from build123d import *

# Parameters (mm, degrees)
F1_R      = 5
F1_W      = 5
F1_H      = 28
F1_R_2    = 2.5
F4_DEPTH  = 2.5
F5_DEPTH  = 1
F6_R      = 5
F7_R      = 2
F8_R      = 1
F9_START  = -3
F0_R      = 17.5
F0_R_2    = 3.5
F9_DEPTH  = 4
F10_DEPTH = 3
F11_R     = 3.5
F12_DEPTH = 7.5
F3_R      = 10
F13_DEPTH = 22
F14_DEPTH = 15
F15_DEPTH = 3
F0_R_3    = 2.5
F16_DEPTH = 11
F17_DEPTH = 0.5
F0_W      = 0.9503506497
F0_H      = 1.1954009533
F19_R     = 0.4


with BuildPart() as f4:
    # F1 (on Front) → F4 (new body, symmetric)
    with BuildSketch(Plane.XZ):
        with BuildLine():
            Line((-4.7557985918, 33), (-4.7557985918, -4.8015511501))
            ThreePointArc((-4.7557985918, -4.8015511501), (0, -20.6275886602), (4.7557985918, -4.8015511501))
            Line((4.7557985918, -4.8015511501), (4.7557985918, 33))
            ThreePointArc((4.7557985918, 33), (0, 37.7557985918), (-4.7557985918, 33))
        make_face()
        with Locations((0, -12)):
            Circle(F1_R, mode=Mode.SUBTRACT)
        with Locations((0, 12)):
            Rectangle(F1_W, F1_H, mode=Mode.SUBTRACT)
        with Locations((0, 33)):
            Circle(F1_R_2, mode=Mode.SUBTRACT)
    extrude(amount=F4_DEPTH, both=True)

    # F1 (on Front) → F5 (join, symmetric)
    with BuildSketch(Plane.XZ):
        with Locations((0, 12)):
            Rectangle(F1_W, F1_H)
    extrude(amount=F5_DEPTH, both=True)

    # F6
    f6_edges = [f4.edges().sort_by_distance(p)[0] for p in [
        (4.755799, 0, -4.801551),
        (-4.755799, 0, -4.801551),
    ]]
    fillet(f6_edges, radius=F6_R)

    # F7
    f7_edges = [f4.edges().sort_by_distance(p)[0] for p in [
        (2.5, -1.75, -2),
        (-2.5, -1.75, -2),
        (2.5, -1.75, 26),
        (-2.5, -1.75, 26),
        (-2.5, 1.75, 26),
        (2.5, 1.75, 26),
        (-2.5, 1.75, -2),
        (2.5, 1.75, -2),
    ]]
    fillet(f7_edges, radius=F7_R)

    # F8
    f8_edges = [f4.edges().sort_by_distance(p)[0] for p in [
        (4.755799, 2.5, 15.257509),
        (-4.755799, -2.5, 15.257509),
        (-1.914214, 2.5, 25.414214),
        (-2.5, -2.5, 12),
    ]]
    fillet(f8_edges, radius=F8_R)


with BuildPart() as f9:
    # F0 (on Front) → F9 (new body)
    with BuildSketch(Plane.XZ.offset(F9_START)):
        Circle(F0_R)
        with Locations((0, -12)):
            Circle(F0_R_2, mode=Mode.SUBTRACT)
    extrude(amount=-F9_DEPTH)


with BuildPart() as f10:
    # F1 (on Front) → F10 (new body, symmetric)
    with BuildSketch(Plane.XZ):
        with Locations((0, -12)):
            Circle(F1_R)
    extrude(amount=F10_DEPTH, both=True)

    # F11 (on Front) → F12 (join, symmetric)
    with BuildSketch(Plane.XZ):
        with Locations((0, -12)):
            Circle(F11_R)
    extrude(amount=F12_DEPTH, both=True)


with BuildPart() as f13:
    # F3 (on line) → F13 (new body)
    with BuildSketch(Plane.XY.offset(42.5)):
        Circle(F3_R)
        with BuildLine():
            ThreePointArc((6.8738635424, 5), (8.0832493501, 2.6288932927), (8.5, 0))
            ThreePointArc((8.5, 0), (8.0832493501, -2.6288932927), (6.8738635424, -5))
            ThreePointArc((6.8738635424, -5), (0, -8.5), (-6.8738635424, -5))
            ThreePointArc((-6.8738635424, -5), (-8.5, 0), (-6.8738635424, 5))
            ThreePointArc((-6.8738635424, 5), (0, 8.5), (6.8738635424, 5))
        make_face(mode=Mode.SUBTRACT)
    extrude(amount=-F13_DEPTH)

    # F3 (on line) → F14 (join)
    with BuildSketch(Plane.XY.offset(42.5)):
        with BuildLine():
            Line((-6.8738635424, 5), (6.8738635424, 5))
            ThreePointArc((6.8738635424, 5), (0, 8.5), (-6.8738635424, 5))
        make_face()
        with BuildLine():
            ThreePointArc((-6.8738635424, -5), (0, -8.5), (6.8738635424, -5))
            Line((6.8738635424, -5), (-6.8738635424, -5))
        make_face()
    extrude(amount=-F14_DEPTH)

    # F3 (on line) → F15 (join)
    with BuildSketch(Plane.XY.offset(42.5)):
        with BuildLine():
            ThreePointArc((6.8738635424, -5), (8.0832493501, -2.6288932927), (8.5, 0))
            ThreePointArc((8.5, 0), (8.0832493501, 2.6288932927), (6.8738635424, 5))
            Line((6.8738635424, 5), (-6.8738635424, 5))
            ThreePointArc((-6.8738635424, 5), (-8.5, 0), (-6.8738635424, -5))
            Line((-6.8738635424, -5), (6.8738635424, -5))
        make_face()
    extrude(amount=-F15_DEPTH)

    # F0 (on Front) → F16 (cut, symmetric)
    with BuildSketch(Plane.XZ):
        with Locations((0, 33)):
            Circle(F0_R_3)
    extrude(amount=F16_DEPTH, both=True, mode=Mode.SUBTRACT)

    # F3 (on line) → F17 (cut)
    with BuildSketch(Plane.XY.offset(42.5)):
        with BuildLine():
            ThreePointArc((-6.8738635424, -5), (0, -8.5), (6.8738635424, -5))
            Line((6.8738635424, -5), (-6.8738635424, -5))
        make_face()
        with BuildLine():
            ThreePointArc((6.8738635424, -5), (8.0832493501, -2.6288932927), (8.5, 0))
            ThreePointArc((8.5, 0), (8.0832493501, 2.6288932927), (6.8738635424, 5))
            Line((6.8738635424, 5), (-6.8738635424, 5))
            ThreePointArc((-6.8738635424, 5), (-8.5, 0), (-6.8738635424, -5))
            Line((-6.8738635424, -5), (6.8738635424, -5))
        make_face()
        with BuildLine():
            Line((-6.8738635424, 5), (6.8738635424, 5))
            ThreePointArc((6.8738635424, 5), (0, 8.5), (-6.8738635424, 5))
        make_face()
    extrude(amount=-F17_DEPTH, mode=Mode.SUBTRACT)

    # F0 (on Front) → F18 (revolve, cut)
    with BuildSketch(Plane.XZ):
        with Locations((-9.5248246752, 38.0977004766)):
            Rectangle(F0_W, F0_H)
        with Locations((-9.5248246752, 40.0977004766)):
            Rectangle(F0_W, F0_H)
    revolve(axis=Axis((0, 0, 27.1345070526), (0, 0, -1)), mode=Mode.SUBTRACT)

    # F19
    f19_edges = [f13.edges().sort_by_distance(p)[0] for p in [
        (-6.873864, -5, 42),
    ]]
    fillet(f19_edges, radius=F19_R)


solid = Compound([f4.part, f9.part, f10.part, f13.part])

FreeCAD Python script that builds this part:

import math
import FreeCAD as App
import Part
import Sketcher
from FreeCAD import Vector


def edges_at(feature, points):
    """Names of the edges that pass closest to the given points."""
    edges = feature.Shape.Edges
    near = lambda p: min(range(len(edges)), key=lambda i: edges[i].distToShape(Part.Vertex(*p))[0])
    return sorted({f"Edge{near(p) + 1}" for p in points})

doc = App.newDocument("Part")
body = doc.addObject("PartDesign::Body", "Body")

# Sketch on XZ plane
sketch1 = doc.addObject("Sketcher::SketchObject", "Sketch")
body.addObject(sketch1)
sketch1.AttachmentSupport = (doc.XZ_Plane, [""])
sketch1.MapMode = "FlatFace"
sketch1.addGeometry(Part.LineSegment(Vector(-4.755799, 33, 0), Vector(-4.755799, -4.801551, 0)), False)
sketch1.addGeometry(Part.ArcOfCircle(Part.Circle(Vector(0, -12, 0), Vector(0, 0, 1), 8.627589), math.radians(123.45154), math.radians(416.54846)), False)
sketch1.addGeometry(Part.LineSegment(Vector(4.755799, -4.801551, 0), Vector(4.755799, 33, 0)), False)
sketch1.addGeometry(Part.ArcOfCircle(Part.Circle(Vector(0, 33, 0), Vector(0, 0, 1), 4.755799), math.radians(0), math.radians(180)), False)
sketch1.addGeometry(Part.Circle(Vector(0, -12, 0), Vector(0, 0, 1), 5), False)
sketch1.addGeometry(Part.LineSegment(Vector(2.5, -2, 0), Vector(-2.5, -2, 0)), False)
sketch1.addGeometry(Part.LineSegment(Vector(-2.5, -2, 0), Vector(-2.5, 26, 0)), False)
sketch1.addGeometry(Part.LineSegment(Vector(-2.5, 26, 0), Vector(2.5, 26, 0)), False)
sketch1.addGeometry(Part.LineSegment(Vector(2.5, 26, 0), Vector(2.5, -2, 0)), False)
sketch1.addGeometry(Part.Circle(Vector(0, 33, 0), Vector(0, 0, 1), 2.5), False)
sketch1.addConstraint(Sketcher.Constraint("Coincident", 0, 2, 1, 1))
sketch1.addConstraint(Sketcher.Constraint("Coincident", 1, 2, 2, 1))
sketch1.addConstraint(Sketcher.Constraint("Tangent", 2, 2, 3, 1))
sketch1.addConstraint(Sketcher.Constraint("Tangent", 3, 2, 0, 1))
sketch1.addConstraint(Sketcher.Constraint("Coincident", 5, 2, 6, 1))
sketch1.addConstraint(Sketcher.Constraint("Coincident", 6, 2, 7, 1))
sketch1.addConstraint(Sketcher.Constraint("Coincident", 7, 2, 8, 1))
sketch1.addConstraint(Sketcher.Constraint("Coincident", 8, 2, 5, 1))
sketch1.addConstraint(Sketcher.Constraint("Vertical", 0))
sketch1.addConstraint(Sketcher.Constraint("Vertical", 2))
sketch1.addConstraint(Sketcher.Constraint("Horizontal", 5))
sketch1.addConstraint(Sketcher.Constraint("Vertical", 6))
sketch1.addConstraint(Sketcher.Constraint("Horizontal", 7))
sketch1.addConstraint(Sketcher.Constraint("Vertical", 8))
sketch1.addConstraint(Sketcher.Constraint("Coincident", 4, 3, 1, 3))
sketch1.addConstraint(Sketcher.Constraint("Coincident", 9, 3, 3, 3))
sketch1.addConstraint(Sketcher.Constraint("Symmetric", 0, 2, 1, 2, -2))
sketch1.addConstraint(Sketcher.Constraint("Diameter", 4, 10.0))
sketch1.addConstraint(Sketcher.Constraint("Diameter", 9, 5.0))
sketch1.addConstraint(Sketcher.Constraint("DistanceX", 5, 2, 5, 1, 5.0))
sketch1.addConstraint(Sketcher.Constraint("DistanceY", 6, 1, 6, 2, 28.0))
sketch1.addConstraint(Sketcher.Constraint("DistanceY", 1, 3, -1, 1, 12.0))
sketch1.addConstraint(Sketcher.Constraint("DistanceY", -1, 1, 3, 3, 33.0))
sketch1.addConstraint(Sketcher.Constraint("DistanceY", 5, 2, -1, 1, 2.0))
sketch1.addConstraint(Sketcher.Constraint("DistanceX", 5, 2, -1, 1, 2.5))
sketch1.addConstraint(Sketcher.Constraint("Radius", 3, 4.755799))
sketch1.addConstraint(Sketcher.Constraint("Radius", 1, 8.627589))
pad1 = doc.addObject("PartDesign::Pad", "Pad")
body.addObject(pad1)
pad1.Profile = sketch1
pad1.Length = 5
pad1.Midplane = True

# Sketch on XZ plane
sketch2 = doc.addObject("Sketcher::SketchObject", "Sketch001")
body.addObject(sketch2)
sketch2.AttachmentSupport = (doc.XZ_Plane, [""])
sketch2.MapMode = "FlatFace"
sketch2.addGeometry(Part.LineSegment(Vector(-2.5, 26, 0), Vector(-2.5, -2, 0)), False)
sketch2.addGeometry(Part.LineSegment(Vector(-2.5, -2, 0), Vector(2.5, -2, 0)), False)
sketch2.addGeometry(Part.LineSegment(Vector(2.5, -2, 0), Vector(2.5, 26, 0)), False)
sketch2.addGeometry(Part.LineSegment(Vector(2.5, 26, 0), Vector(-2.5, 26, 0)), False)
sketch2.addConstraint(Sketcher.Constraint("Coincident", 0, 2, 1, 1))
sketch2.addConstraint(Sketcher.Constraint("Coincident", 1, 2, 2, 1))
sketch2.addConstraint(Sketcher.Constraint("Coincident", 2, 2, 3, 1))
sketch2.addConstraint(Sketcher.Constraint("Coincident", 3, 2, 0, 1))
sketch2.addConstraint(Sketcher.Constraint("Vertical", 0))
sketch2.addConstraint(Sketcher.Constraint("Horizontal", 1))
sketch2.addConstraint(Sketcher.Constraint("Vertical", 2))
sketch2.addConstraint(Sketcher.Constraint("Horizontal", 3))
sketch2.addConstraint(Sketcher.Constraint("DistanceX", 1, 1, 1, 2, 5.0))
sketch2.addConstraint(Sketcher.Constraint("DistanceY", 0, 2, 0, 1, 28.0))
sketch2.addConstraint(Sketcher.Constraint("DistanceY", 0, 2, -1, 1, 2.0))
sketch2.addConstraint(Sketcher.Constraint("DistanceX", 0, 2, -1, 1, 2.5))
pad2 = doc.addObject("PartDesign::Pad", "Pad001")
body.addObject(pad2)
pad2.Profile = sketch2
pad2.Length = 2
pad2.Midplane = True
doc.recompute()

fillet = doc.addObject("PartDesign::Fillet", "Fillet")
body.addObject(fillet)
fillet.Base = (pad2, edges_at(pad2, [(4.756, 0, -4.802), (-4.756, 0, -4.802)]))
fillet.Radius = 5
doc.recompute()

fillet2 = doc.addObject("PartDesign::Fillet", "Fillet001")
body.addObject(fillet2)
fillet2.Base = (fillet, edges_at(fillet, [
    (2.5, -1.75, -2),
    (-2.5, -1.75, -2),
    (2.5, -1.75, 26),
    (-2.5, -1.75, 26),
    (-2.5, 1.75, 26),
    (2.5, 1.75, 26),
    (-2.5, 1.75, -2),
    (2.5, 1.75, -2),
]))
fillet2.Radius = 2
doc.recompute()

fillet3 = doc.addObject("PartDesign::Fillet", "Fillet002")
body.addObject(fillet3)
fillet3.Base = (fillet2, edges_at(fillet2, [
    (4.756, 2.5, 15.258),
    (-4.756, -2.5, 15.258),
    (-1.914, 2.5, 25.414),
    (-2.5, -2.5, 12),
]))
fillet3.Radius = 1
body2 = doc.addObject("PartDesign::Body", "Body001")

# Sketch on XZ plane
sketch3 = doc.addObject("Sketcher::SketchObject", "Sketch002")
body2.addObject(sketch3)
sketch3.AttachmentSupport = (doc.getObject("XZ_Plane001"), [""])
sketch3.MapMode = "FlatFace"
sketch3.AttachmentOffset = App.Placement(Vector(0, 0, -3), App.Rotation())
sketch3.addGeometry(Part.Circle(Vector(0, 0, 0), Vector(0, 0, 1), 17.5), False)
sketch3.addGeometry(Part.Circle(Vector(0, -12, 0), Vector(0, 0, 1), 3.5), False)
sketch3.addConstraint(Sketcher.Constraint("Coincident", 0, 3, -1, 1))
sketch3.addConstraint(Sketcher.Constraint("PointOnObject", 1, 3, -2))
sketch3.addConstraint(Sketcher.Constraint("Diameter", 0, 35.0))
sketch3.addConstraint(Sketcher.Constraint("Diameter", 1, 7.0))
sketch3.addConstraint(Sketcher.Constraint("DistanceY", 1, 3, -1, 1, 12.0))
pad3 = doc.addObject("PartDesign::Pad", "Pad002")
body2.addObject(pad3)
pad3.Profile = sketch3
pad3.Length = 4
pad3.Reversed = True
body3 = doc.addObject("PartDesign::Body", "Body002")

# Sketch on XZ plane
sketch4 = doc.addObject("Sketcher::SketchObject", "Sketch003")
body3.addObject(sketch4)
sketch4.AttachmentSupport = (doc.getObject("XZ_Plane002"), [""])
sketch4.MapMode = "FlatFace"
sketch4.addGeometry(Part.Circle(Vector(0, -12, 0), Vector(0, 0, 1), 5), False)
sketch4.addConstraint(Sketcher.Constraint("PointOnObject", 0, 3, -2))
sketch4.addConstraint(Sketcher.Constraint("Diameter", 0, 10.0))
sketch4.addConstraint(Sketcher.Constraint("DistanceY", 0, 3, -1, 1, 12.0))
pad4 = doc.addObject("PartDesign::Pad", "Pad003")
body3.addObject(pad4)
pad4.Profile = sketch4
pad4.Length = 6
pad4.Midplane = True

# Sketch on XZ plane
sketch5 = doc.addObject("Sketcher::SketchObject", "Sketch004")
body3.addObject(sketch5)
sketch5.AttachmentSupport = (doc.getObject("XZ_Plane002"), [""])
sketch5.MapMode = "FlatFace"
sketch5.addGeometry(Part.Circle(Vector(0, -12, 0), Vector(0, 0, 1), 3.5), False)
sketch5.addConstraint(Sketcher.Constraint("PointOnObject", 0, 3, -2))
sketch5.addConstraint(Sketcher.Constraint("Diameter", 0, 7.0))
sketch5.addConstraint(Sketcher.Constraint("DistanceY", 0, 3, -1, 1, 12.0))
pad5 = doc.addObject("PartDesign::Pad", "Pad004")
body3.addObject(pad5)
pad5.Profile = sketch5
pad5.Length = 15
pad5.Midplane = True
body4 = doc.addObject("PartDesign::Body", "Body003")

# Sketch on XY plane
sketch6 = doc.addObject("Sketcher::SketchObject", "Sketch005")
body4.addObject(sketch6)
sketch6.AttachmentSupport = (doc.getObject("XY_Plane003"), [""])
sketch6.MapMode = "FlatFace"
sketch6.AttachmentOffset = App.Placement(Vector(0, 0, 42.5), App.Rotation())
sketch6.addGeometry(Part.Circle(Vector(0, 0, 0), Vector(0, 0, 1), 10), False)
sketch6.addGeometry(Part.ArcOfCircle(Part.Circle(Vector(0, 0, 0), Vector(0, 0, 1), 8.5), math.radians(36.031879), math.radians(143.968121)), False)
sketch6.addGeometry(Part.ArcOfCircle(Part.Circle(Vector(0, 0, 0), Vector(0, 0, 1), 8.5), math.radians(0), math.radians(36.031879)), False)
sketch6.addGeometry(Part.ArcOfCircle(Part.Circle(Vector(0, 0, 0), Vector(0, 0, 1), 8.5), math.radians(-36.031879), math.radians(0)), False)
sketch6.addGeometry(Part.ArcOfCircle(Part.Circle(Vector(0, 0, 0), Vector(0, 0, 1), 8.5), math.radians(-143.968121), math.radians(-36.031879)), False)
sketch6.addGeometry(Part.ArcOfCircle(Part.Circle(Vector(0, 0, 0), Vector(0, 0, 1), 8.5), math.radians(143.968121), math.radians(216.031879)), False)
sketch6.addConstraint(Sketcher.Constraint("Tangent", 1, 1, 2, 2))
sketch6.addConstraint(Sketcher.Constraint("Tangent", 2, 1, 3, 2))
sketch6.addConstraint(Sketcher.Constraint("Tangent", 3, 1, 4, 2))
sketch6.addConstraint(Sketcher.Constraint("Tangent", 4, 1, 5, 2))
sketch6.addConstraint(Sketcher.Constraint("Tangent", 5, 1, 1, 2))
sketch6.addConstraint(Sketcher.Constraint("Coincident", 0, 3, -1, 1))
sketch6.addConstraint(Sketcher.Constraint("Coincident", 1, 3, -1, 1))
sketch6.addConstraint(Sketcher.Constraint("Coincident", 3, 3, -1, 1))
sketch6.addConstraint(Sketcher.Constraint("PointOnObject", 2, 1, -1))
sketch6.addConstraint(Sketcher.Constraint("Horizontal", 3, 1, 4, 1))
sketch6.addConstraint(Sketcher.Constraint("Horizontal", 1, 1, 5, 1))
sketch6.addConstraint(Sketcher.Constraint("Vertical", 1, 1, 3, 1))
sketch6.addConstraint(Sketcher.Constraint("Diameter", 0, 20.0))
sketch6.addConstraint(Sketcher.Constraint("Radius", 1, 8.5))
sketch6.addConstraint(Sketcher.Constraint("DistanceY", -1, 1, 1, 1, 5.0))
pad6 = doc.addObject("PartDesign::Pad", "Pad005")
body4.addObject(pad6)
pad6.Profile = sketch6
pad6.Length = 22
pad6.Reversed = True

# Sketch on XY plane
sketch7 = doc.addObject("Sketcher::SketchObject", "Sketch006")
body4.addObject(sketch7)
sketch7.AttachmentSupport = (doc.getObject("XY_Plane003"), [""])
sketch7.MapMode = "FlatFace"
sketch7.AttachmentOffset = App.Placement(Vector(0, 0, 42.5), App.Rotation())
sketch7.addGeometry(Part.LineSegment(Vector(-6.873864, 5, 0), Vector(6.873864, 5, 0)), False)
sketch7.addGeometry(Part.ArcOfCircle(Part.Circle(Vector(0, 0, 0), Vector(0, 0, 1), 8.5), math.radians(36.031879), math.radians(143.968121)), False)
sketch7.addGeometry(Part.ArcOfCircle(Part.Circle(Vector(0, 0, 0), Vector(0, 0, 1), 8.5), math.radians(-143.968121), math.radians(-36.031879)), False)
sketch7.addGeometry(Part.LineSegment(Vector(6.873864, -5, 0), Vector(-6.873864, -5, 0)), False)
sketch7.addConstraint(Sketcher.Constraint("Coincident", 0, 1, 1, 2))
sketch7.addConstraint(Sketcher.Constraint("Coincident", 1, 1, 0, 2))
sketch7.addConstraint(Sketcher.Constraint("Coincident", 2, 1, 3, 2))
sketch7.addConstraint(Sketcher.Constraint("Coincident", 3, 1, 2, 2))
sketch7.addConstraint(Sketcher.Constraint("Horizontal", 0))
sketch7.addConstraint(Sketcher.Constraint("Horizontal", 3))
sketch7.addConstraint(Sketcher.Constraint("Coincident", 1, 3, -1, 1))
sketch7.addConstraint(Sketcher.Constraint("Coincident", 2, 3, -1, 1))
sketch7.addConstraint(Sketcher.Constraint("Equal", 1, 2))
sketch7.addConstraint(Sketcher.Constraint("Vertical", 0, 1, 2, 1))
sketch7.addConstraint(Sketcher.Constraint("Radius", 1, 8.5))
sketch7.addConstraint(Sketcher.Constraint("DistanceY", -1, 1, 0, 1, 5.0))
pad7 = doc.addObject("PartDesign::Pad", "Pad006")
body4.addObject(pad7)
pad7.Profile = sketch7
pad7.Length = 15
pad7.Reversed = True

# Sketch on XY plane
sketch8 = doc.addObject("Sketcher::SketchObject", "Sketch007")
body4.addObject(sketch8)
sketch8.AttachmentSupport = (doc.getObject("XY_Plane003"), [""])
sketch8.MapMode = "FlatFace"
sketch8.AttachmentOffset = App.Placement(Vector(0, 0, 42.5), App.Rotation())
sketch8.addGeometry(Part.ArcOfCircle(Part.Circle(Vector(0, 0, 0), Vector(0, 0, 1), 8.5), math.radians(-36.031879), math.radians(0)), False)
sketch8.addGeometry(Part.ArcOfCircle(Part.Circle(Vector(0, 0, 0), Vector(0, 0, 1), 8.5), math.radians(0), math.radians(36.031879)), False)
sketch8.addGeometry(Part.LineSegment(Vector(6.873864, 5, 0), Vector(-6.873864, 5, 0)), False)
sketch8.addGeometry(Part.ArcOfCircle(Part.Circle(Vector(0, 0, 0), Vector(0, 0, 1), 8.5), math.radians(143.968121), math.radians(216.031879)), False)
sketch8.addGeometry(Part.LineSegment(Vector(-6.873864, -5, 0), Vector(6.873864, -5, 0)), False)
sketch8.addConstraint(Sketcher.Constraint("Tangent", 0, 2, 1, 1))
sketch8.addConstraint(Sketcher.Constraint("Coincident", 1, 2, 2, 1))
sketch8.addConstraint(Sketcher.Constraint("Coincident", 2, 2, 3, 1))
sketch8.addConstraint(Sketcher.Constraint("Coincident", 3, 2, 4, 1))
sketch8.addConstraint(Sketcher.Constraint("Coincident", 4, 2, 0, 1))
sketch8.addConstraint(Sketcher.Constraint("Horizontal", 2))
sketch8.addConstraint(Sketcher.Constraint("Horizontal", 4))
sketch8.addConstraint(Sketcher.Constraint("Coincident", 0, 3, -1, 1))
sketch8.addConstraint(Sketcher.Constraint("Coincident", 3, 3, -1, 1))
sketch8.addConstraint(Sketcher.Constraint("Equal", 0, 1))
sketch8.addConstraint(Sketcher.Constraint("Equal", 1, 3))
sketch8.addConstraint(Sketcher.Constraint("PointOnObject", 0, 2, -1))
sketch8.addConstraint(Sketcher.Constraint("Vertical", 2, 2, 3, 2))
sketch8.addConstraint(Sketcher.Constraint("Radius", 0, 8.5))
sketch8.addConstraint(Sketcher.Constraint("DistanceY", -1, 1, 1, 2, 5.0))
pad8 = doc.addObject("PartDesign::Pad", "Pad007")
body4.addObject(pad8)
pad8.Profile = sketch8
pad8.Length = 3
pad8.Reversed = True

# Sketch on XZ plane
sketch9 = doc.addObject("Sketcher::SketchObject", "Sketch008")
body4.addObject(sketch9)
sketch9.AttachmentSupport = (doc.getObject("XZ_Plane003"), [""])
sketch9.MapMode = "FlatFace"
sketch9.addGeometry(Part.Circle(Vector(0, 33, 0), Vector(0, 0, 1), 2.5), False)
sketch9.addConstraint(Sketcher.Constraint("PointOnObject", 0, 3, -2))
sketch9.addConstraint(Sketcher.Constraint("Diameter", 0, 5.0))
sketch9.addConstraint(Sketcher.Constraint("DistanceY", -1, 1, 0, 3, 33.0))
pocket1 = doc.addObject("PartDesign::Pocket", "Pocket")
body4.addObject(pocket1)
pocket1.Profile = sketch9
pocket1.Length = 22
pocket1.Midplane = True

# Sketch on XY plane
sketch10 = doc.addObject("Sketcher::SketchObject", "Sketch009")
body4.addObject(sketch10)
sketch10.AttachmentSupport = (doc.getObject("XY_Plane003"), [""])
sketch10.MapMode = "FlatFace"
sketch10.AttachmentOffset = App.Placement(Vector(0, 0, 42.5), App.Rotation())
sketch10.addGeometry(Part.ArcOfCircle(Part.Circle(Vector(0, 0, 0), Vector(0, 0, 1), 8.5), math.radians(-143.968121), math.radians(-36.031879)), False)
sketch10.addGeometry(Part.ArcOfCircle(Part.Circle(Vector(0, 0, 0), Vector(0, 0, 1), 8.5), math.radians(-36.031879), math.radians(0)), False)
sketch10.addGeometry(Part.ArcOfCircle(Part.Circle(Vector(0, 0, 0), Vector(0, 0, 1), 8.5), math.radians(0), math.radians(36.031879)), False)
sketch10.addGeometry(Part.ArcOfCircle(Part.Circle(Vector(0, 0, 0), Vector(0, 0, 1), 8.5), math.radians(36.031879), math.radians(143.968121)), False)
sketch10.addGeometry(Part.ArcOfCircle(Part.Circle(Vector(0, 0, 0), Vector(0, 0, 1), 8.5), math.radians(143.968121), math.radians(216.031879)), False)
sketch10.addConstraint(Sketcher.Constraint("Tangent", 0, 2, 1, 1))
sketch10.addConstraint(Sketcher.Constraint("Tangent", 1, 2, 2, 1))
sketch10.addConstraint(Sketcher.Constraint("Tangent", 2, 2, 3, 1))
sketch10.addConstraint(Sketcher.Constraint("Tangent", 3, 2, 4, 1))
sketch10.addConstraint(Sketcher.Constraint("Tangent", 4, 2, 0, 1))
sketch10.addConstraint(Sketcher.Constraint("Coincident", 0, 3, -1, 1))
sketch10.addConstraint(Sketcher.Constraint("Coincident", 2, 3, -1, 1))
sketch10.addConstraint(Sketcher.Constraint("PointOnObject", 1, 2, -1))
sketch10.addConstraint(Sketcher.Constraint("Horizontal", 2, 2, 3, 2))
sketch10.addConstraint(Sketcher.Constraint("Horizontal", 0, 2, 4, 2))
sketch10.addConstraint(Sketcher.Constraint("Vertical", 0, 2, 2, 2))
sketch10.addConstraint(Sketcher.Constraint("Radius", 0, 8.5))
sketch10.addConstraint(Sketcher.Constraint("DistanceY", 0, 2, -1, 1, 5.0))
pocket2 = doc.addObject("PartDesign::Pocket", "Pocket001")
body4.addObject(pocket2)
pocket2.Profile = sketch10
pocket2.Length = 0.5

# Sketch on XZ plane
sketch11 = doc.addObject("Sketcher::SketchObject", "Sketch010")
body4.addObject(sketch11)
sketch11.AttachmentSupport = (doc.getObject("XZ_Plane003"), [""])
sketch11.MapMode = "FlatFace"
sketch11.addGeometry(Part.LineSegment(Vector(-10, 38.695401, 0), Vector(-10, 37.5, 0)), False)
sketch11.addGeometry(Part.LineSegment(Vector(-10, 37.5, 0), Vector(-9.049649, 37.5, 0)), False)
sketch11.addGeometry(Part.LineSegment(Vector(-9.049649, 37.5, 0), Vector(-9.049649, 38.695401, 0)), False)
sketch11.addGeometry(Part.LineSegment(Vector(-9.049649, 38.695401, 0), Vector(-10, 38.695401, 0)), False)
sketch11.addGeometry(Part.LineSegment(Vector(-10, 40.695401, 0), Vector(-10, 39.5, 0)), False)
sketch11.addGeometry(Part.LineSegment(Vector(-10, 39.5, 0), Vector(-9.049649, 39.5, 0)), False)
sketch11.addGeometry(Part.LineSegment(Vector(-9.049649, 39.5, 0), Vector(-9.049649, 40.695401, 0)), False)
sketch11.addGeometry(Part.LineSegment(Vector(-9.049649, 40.695401, 0), Vector(-10, 40.695401, 0)), False)
sketch11.addConstraint(Sketcher.Constraint("Coincident", 0, 2, 1, 1))
sketch11.addConstraint(Sketcher.Constraint("Coincident", 1, 2, 2, 1))
sketch11.addConstraint(Sketcher.Constraint("Coincident", 2, 2, 3, 1))
sketch11.addConstraint(Sketcher.Constraint("Coincident", 3, 2, 0, 1))
sketch11.addConstraint(Sketcher.Constraint("Coincident", 4, 2, 5, 1))
sketch11.addConstraint(Sketcher.Constraint("Coincident", 5, 2, 6, 1))
sketch11.addConstraint(Sketcher.Constraint("Coincident", 6, 2, 7, 1))
sketch11.addConstraint(Sketcher.Constraint("Coincident", 7, 2, 4, 1))
sketch11.addConstraint(Sketcher.Constraint("Vertical", 0))
sketch11.addConstraint(Sketcher.Constraint("Horizontal", 1))
sketch11.addConstraint(Sketcher.Constraint("Vertical", 2))
sketch11.addConstraint(Sketcher.Constraint("Horizontal", 3))
sketch11.addConstraint(Sketcher.Constraint("Vertical", 4))
sketch11.addConstraint(Sketcher.Constraint("Horizontal", 5))
sketch11.addConstraint(Sketcher.Constraint("Vertical", 6))
sketch11.addConstraint(Sketcher.Constraint("Horizontal", 7))
sketch11.addConstraint(Sketcher.Constraint("Vertical", 3, 2, 4, 2))
sketch11.addConstraint(Sketcher.Constraint("Vertical", 2, 2, 5, 2))
sketch11.addConstraint(Sketcher.Constraint("Equal", 2, 4))
sketch11.addConstraint(Sketcher.Constraint("DistanceX", 0, 2, -1, 1, 10.0))
sketch11.addConstraint(Sketcher.Constraint("DistanceY", 0, 2, 4, 2, 2.0))
sketch11.addConstraint(Sketcher.Constraint("DistanceY", -1, 1, 0, 2, 37.5))
sketch11.addConstraint(Sketcher.Constraint("DistanceY", 0, 2, 0, 1, 1.195401))
sketch11.addConstraint(Sketcher.Constraint("DistanceX", 1, 1, 1, 2, 0.950351))
groove = doc.addObject("PartDesign::Groove", "Groove")
body4.addObject(groove)
groove.Profile = sketch11
groove.ReferenceAxis = (sketch11, ["V_Axis"])
groove.Angle = 360
doc.recompute()

fillet4 = doc.addObject("PartDesign::Fillet", "Fillet003")
body4.addObject(fillet4)
fillet4.Base = (groove, edges_at(groove, [(-8.5, 0, 42)]))
fillet4.Radius = 0.4

doc.recompute()
